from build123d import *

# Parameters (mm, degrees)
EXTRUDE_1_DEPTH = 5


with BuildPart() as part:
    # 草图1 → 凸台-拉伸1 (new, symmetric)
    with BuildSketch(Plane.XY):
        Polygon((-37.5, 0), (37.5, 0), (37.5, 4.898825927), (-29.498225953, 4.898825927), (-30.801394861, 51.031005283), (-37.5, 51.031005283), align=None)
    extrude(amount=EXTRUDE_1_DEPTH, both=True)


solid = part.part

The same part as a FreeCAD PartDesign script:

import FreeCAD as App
import Part
import Sketcher

doc = App.newDocument("Part")
body = doc.addObject("PartDesign::Body", "Body")

sketch1 = body.newObject("Sketcher::SketchObject", "Sketch")
sketch1.AttachmentSupport = (doc.getObject("XY_Plane"), [""])
sketch1.MapMode = "FlatFace"
sketch1.addGeometry([
    Part.LineSegment(App.Vector(-37.5, 0, 0), App.Vector(37.5, 0, 0)),
    Part.LineSegment(App.Vector(37.5, 0, 0), App.Vector(37.5, 4.9, 0)),
    Part.LineSegment(App.Vector(37.5, 4.9, 0), App.Vector(-29.5, 4.9, 0)),
    Part.LineSegment(App.Vector(-29.5, 4.9, 0), App.Vector(-30.8, 51, 0)),
    Part.LineSegment(App.Vector(-30.8, 51, 0), App.Vector(-37.5, 51, 0)),
    Part.LineSegment(App.Vector(-37.5, 51, 0), App.Vector(-37.5, 0, 0)),
], False)
sketch1.addConstraint([
    Sketcher.Constraint("Coincident", 0, 2, 1, 1),
    Sketcher.Constraint("Coincident", 1, 2, 2, 1),
    Sketcher.Constraint("Coincident", 2, 2, 3, 1),
    Sketcher.Constraint("Coincident", 3, 2, 4, 1),
    Sketcher.Constraint("Coincident", 4, 2, 5, 1),
    Sketcher.Constraint("Coincident", 5, 2, 0, 1),
    Sketcher.Constraint("Horizontal", 0),
    Sketcher.Constraint("Vertical", 1),
    Sketcher.Constraint("Horizontal", 2),
    Sketcher.Constraint("Horizontal", 4),
    Sketcher.Constraint("Vertical", 5),
    Sketcher.Constraint("Symmetric", 0, 2, 5, 2, -1, 1),
    Sketcher.Constraint("DistanceX", 0, 1, 0, 2, 75.0),
    Sketcher.Constraint("DistanceX", 2, 2, 2, 1, 66.998226),
    Sketcher.Constraint("DistanceX", 4, 2, 4, 1, 6.698605),
    Sketcher.Constraint("DistanceY", 1, 1, 1, 2, 4.898826),
    Sketcher.Constraint("DistanceY", 5, 2, 5, 1, 51.031005),
])
pad1 = body.newObject("PartDesign::Pad", "Pad")
pad1.Profile = sketch1
pad1.Length = 10
pad1.Midplane = True

doc.recompute()
